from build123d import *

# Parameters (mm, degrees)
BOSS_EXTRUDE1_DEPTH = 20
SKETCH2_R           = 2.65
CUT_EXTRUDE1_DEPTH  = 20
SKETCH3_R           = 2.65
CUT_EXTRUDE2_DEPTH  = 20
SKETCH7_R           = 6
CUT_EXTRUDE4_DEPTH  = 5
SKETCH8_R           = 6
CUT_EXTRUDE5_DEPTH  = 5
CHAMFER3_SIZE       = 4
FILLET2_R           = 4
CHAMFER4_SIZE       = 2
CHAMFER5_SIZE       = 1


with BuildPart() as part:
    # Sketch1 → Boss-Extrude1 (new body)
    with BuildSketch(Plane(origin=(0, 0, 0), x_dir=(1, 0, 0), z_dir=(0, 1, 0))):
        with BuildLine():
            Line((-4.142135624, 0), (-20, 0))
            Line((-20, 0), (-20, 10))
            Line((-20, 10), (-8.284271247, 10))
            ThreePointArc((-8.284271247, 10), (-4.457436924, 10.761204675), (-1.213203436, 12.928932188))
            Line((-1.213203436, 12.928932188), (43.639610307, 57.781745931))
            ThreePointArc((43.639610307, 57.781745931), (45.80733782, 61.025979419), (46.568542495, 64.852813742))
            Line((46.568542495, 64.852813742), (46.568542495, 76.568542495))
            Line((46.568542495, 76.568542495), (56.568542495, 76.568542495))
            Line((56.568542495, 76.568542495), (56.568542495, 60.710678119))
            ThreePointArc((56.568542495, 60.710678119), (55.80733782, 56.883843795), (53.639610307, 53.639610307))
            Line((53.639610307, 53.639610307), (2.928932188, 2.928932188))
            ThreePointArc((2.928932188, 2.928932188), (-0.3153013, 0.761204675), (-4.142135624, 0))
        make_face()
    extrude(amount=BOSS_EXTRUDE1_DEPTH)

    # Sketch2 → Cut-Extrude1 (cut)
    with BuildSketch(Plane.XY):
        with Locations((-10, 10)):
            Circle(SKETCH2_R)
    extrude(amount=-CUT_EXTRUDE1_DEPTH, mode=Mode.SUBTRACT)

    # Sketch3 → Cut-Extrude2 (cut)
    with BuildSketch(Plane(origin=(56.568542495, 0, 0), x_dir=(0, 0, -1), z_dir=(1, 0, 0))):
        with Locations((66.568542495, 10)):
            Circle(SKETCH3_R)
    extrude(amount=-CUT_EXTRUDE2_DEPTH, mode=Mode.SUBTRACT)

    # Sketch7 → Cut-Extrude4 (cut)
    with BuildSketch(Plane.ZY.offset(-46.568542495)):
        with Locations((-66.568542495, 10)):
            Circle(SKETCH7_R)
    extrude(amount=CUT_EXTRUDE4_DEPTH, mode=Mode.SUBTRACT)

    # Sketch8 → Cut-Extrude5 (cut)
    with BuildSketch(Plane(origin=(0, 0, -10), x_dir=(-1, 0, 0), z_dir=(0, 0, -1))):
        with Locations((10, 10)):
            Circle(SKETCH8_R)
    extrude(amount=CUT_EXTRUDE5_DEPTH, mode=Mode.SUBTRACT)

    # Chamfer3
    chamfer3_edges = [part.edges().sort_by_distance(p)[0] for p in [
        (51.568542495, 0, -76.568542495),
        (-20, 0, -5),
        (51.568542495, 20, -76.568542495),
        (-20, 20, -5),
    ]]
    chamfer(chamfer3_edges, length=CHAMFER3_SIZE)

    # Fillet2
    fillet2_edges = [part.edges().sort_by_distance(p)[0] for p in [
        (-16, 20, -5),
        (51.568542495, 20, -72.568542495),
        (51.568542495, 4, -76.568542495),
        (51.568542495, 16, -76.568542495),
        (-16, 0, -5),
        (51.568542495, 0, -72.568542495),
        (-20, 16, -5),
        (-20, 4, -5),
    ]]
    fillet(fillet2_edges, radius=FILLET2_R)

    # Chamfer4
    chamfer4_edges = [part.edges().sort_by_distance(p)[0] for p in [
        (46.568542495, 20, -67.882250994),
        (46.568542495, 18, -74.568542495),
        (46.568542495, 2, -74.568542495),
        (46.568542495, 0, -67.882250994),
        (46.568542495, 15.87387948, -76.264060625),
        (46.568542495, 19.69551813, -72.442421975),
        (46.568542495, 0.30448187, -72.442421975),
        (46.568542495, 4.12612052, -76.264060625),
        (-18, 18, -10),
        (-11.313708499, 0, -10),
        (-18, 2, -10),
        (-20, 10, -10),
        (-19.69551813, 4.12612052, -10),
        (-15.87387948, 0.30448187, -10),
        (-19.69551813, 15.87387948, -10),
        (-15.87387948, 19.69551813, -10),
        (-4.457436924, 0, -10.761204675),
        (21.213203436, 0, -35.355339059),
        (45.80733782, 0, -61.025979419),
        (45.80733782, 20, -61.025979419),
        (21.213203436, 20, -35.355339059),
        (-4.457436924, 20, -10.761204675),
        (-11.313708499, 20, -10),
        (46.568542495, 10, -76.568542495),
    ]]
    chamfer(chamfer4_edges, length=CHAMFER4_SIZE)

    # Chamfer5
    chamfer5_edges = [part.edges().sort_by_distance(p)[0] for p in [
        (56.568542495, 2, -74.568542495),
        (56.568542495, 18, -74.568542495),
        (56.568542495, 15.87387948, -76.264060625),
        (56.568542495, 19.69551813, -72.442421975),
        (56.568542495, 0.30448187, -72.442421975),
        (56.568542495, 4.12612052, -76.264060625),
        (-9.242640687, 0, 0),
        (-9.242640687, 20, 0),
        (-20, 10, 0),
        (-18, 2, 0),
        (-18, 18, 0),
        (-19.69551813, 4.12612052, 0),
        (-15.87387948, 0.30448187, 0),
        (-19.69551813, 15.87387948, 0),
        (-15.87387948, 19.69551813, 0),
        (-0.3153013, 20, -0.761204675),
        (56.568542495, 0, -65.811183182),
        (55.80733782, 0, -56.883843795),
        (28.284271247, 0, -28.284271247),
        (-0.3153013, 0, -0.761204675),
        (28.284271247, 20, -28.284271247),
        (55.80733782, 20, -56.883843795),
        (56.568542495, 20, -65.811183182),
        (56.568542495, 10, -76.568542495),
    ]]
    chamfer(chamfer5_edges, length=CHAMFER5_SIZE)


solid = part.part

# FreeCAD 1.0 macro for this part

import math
import FreeCAD as App
import Part
import Sketcher

V = App.Vector
Q = App.Units.Quantity


def edges_at(feature, points):
    """Names of the edges that pass closest to the given points."""
    edges = feature.Shape.Edges
    near = lambda p: min(range(len(edges)), key=lambda i: edges[i].distToShape(Part.Vertex(*p))[0])
    return sorted({f"Edge{near(p) + 1}" for p in points})

doc = App.newDocument("Part")
body = doc.addObject("PartDesign::Body", "Body")

# Sketch on XZ plane
sketch1 = body.newObject("Sketcher::SketchObject", "Sketch")
sketch1.AttachmentSupport = (doc.getObject("XZ_Plane"), [""])
sketch1.MapMode = "FlatFace"
sketch1.addGeometry([
    Part.LineSegment(V(-20, 0, 0), V(-4.142136, 0, 0)),  # 0
    Part.ArcOfCircle(Part.Circle(V(-4.142136, -10, 0), V(0, 0, 1), 10), math.radians(45), math.radians(90)),  # 1
    Part.LineSegment(V(2.928932, -2.928932, 0), V(53.63961, -53.63961, 0)),  # 2
    Part.ArcOfCircle(Part.Circle(V(46.568542, -60.710678, 0), V(0, 0, 1), 10), math.radians(0), math.radians(45)),  # 3
    Part.LineSegment(V(56.568542, -60.710678, 0), V(56.568542, -76.568542, 0)),  # 4
    Part.LineSegment(V(56.568542, -76.568542, 0), V(46.568542, -76.568542, 0)),  # 5
    Part.LineSegment(V(46.568542, -76.568542, 0), V(46.568542, -64.852814, 0)),  # 6
    Part.ArcOfCircle(Part.Circle(V(36.568542, -64.852814, 0), V(0, 0, 1), 10), math.radians(0), math.radians(45)),  # 7
    Part.LineSegment(V(43.63961, -57.781746, 0), V(-1.213203, -12.928932, 0)),  # 8
    Part.ArcOfCircle(Part.Circle(V(-8.284271, -20, 0), V(0, 0, 1), 10), math.radians(45), math.radians(90)),  # 9
    Part.LineSegment(V(-8.284271, -10, 0), V(-20, -10, 0)),  # 10
    Part.LineSegment(V(-20, -10, 0), V(-20, 0, 0)),  # 11
], False)
sketch1.addConstraint([
    Sketcher.Constraint("Tangent", 0, 2, 1, 2),
    Sketcher.Constraint("Tangent", 1, 1, 2, 1),
    Sketcher.Constraint("Tangent", 2, 2, 3, 2),
    Sketcher.Constraint("Tangent", 3, 1, 4, 1),
    Sketcher.Constraint("Coincident", 4, 2, 5, 1),
    Sketcher.Constraint("Coincident", 5, 2, 6, 1),
    Sketcher.Constraint("Tangent", 6, 2, 7, 1),
    Sketcher.Constraint("Tangent", 7, 2, 8, 1),
    Sketcher.Constraint("Tangent", 8, 2, 9, 1),
    Sketcher.Constraint("Tangent", 9, 2, 10, 1),
    Sketcher.Constraint("Coincident", 10, 2, 11, 1),
    Sketcher.Constraint("Coincident", 11, 2, 0, 1),
    Sketcher.Constraint("Horizontal", 0),
    Sketcher.Constraint("Vertical", 4),
    Sketcher.Constraint("Horizontal", 5),
    Sketcher.Constraint("Vertical", 6),
    Sketcher.Constraint("Horizontal", 10),
    Sketcher.Constraint("Vertical", 11),
    Sketcher.Constraint("Equal", 1, 3),
    Sketcher.Constraint("Equal", 3, 7),
    Sketcher.Constraint("Equal", 7, 9),
    Sketcher.Constraint("PointOnObject", 0, 2, -1),
    Sketcher.Constraint("Parallel", 2, 8),
    Sketcher.Constraint("Horizontal", 1, 3, 9, 2),
    Sketcher.Constraint("Vertical", 3, 3, 5, 2),
    Sketcher.Constraint("Equal", 0, 4),
    Sketcher.Constraint("Equal", 10, 6),
    Sketcher.Constraint("Radius", 1, Q("10 mm")),
    Sketcher.Constraint("DistanceX", 10, 2, -1, 1, Q("20 mm")),
    Sketcher.Constraint("DistanceX", 10, 2, 10, 1, Q("11.715729 mm")),
    Sketcher.Constraint("Distance", 2, Q("71.715729 mm")),
    Sketcher.Constraint("DistanceX", 0, 1, 0, 2, Q("15.857864 mm")),
])
pad1 = body.newObject("PartDesign::Pad", "Pad")
pad1.Profile = sketch1
pad1.Length = 20
pad1.Reversed = True

# Sketch on XY plane
sketch2 = body.newObject("Sketcher::SketchObject", "Sketch001")
sketch2.AttachmentSupport = (doc.getObject("XY_Plane"), [""])
sketch2.MapMode = "FlatFace"
sketch2.addGeometry(Part.Circle(V(-10, 10, 0), V(0, 0, 1), 2.65), False)
sketch2.addConstraint([
    Sketcher.Constraint("Diameter", 0, Q("5.3 mm")),
    Sketcher.Constraint("DistanceX", 0, 3, -1, 1, Q("10 mm")),
    Sketcher.Constraint("DistanceY", -1, 1, 0, 3, Q("10 mm")),
])
pocket1 = body.newObject("PartDesign::Pocket", "Pocket")
pocket1.Profile = sketch2
pocket1.Length = 20

# Sketch on YZ plane
sketch3 = body.newObject("Sketcher::SketchObject", "Sketch002")
sketch3.AttachmentSupport = (doc.getObject("YZ_Plane"), [""])
sketch3.MapMode = "FlatFace"
sketch3.AttachmentOffset = App.Placement(V(0, 0, 56.568542), App.Rotation())
sketch3.addGeometry(Part.Circle(V(10, -66.568542, 0), V(0, 0, 1), 2.65), False)
sketch3.addConstraint([
    Sketcher.Constraint("Diameter", 0, Q("5.3 mm")),
    Sketcher.Constraint("DistanceX", -1, 1, 0, 3, Q("10 mm")),
    Sketcher.Constraint("DistanceY", 0, 3, -1, 1, Q("66.568542 mm")),
])
pocket2 = body.newObject("PartDesign::Pocket", "Pocket001")
pocket2.Profile = sketch3
pocket2.Length = 20

# Sketch on YZ plane
sketch4 = body.newObject("Sketcher::SketchObject", "Sketch003")
sketch4.AttachmentSupport = (doc.getObject("YZ_Plane"), [""])
sketch4.MapMode = "FlatFace"
sketch4.AttachmentOffset = App.Placement(V(0, 0, 46.568542), App.Rotation())
sketch4.addGeometry(Part.Circle(V(10, -66.568542, 0), V(0, 0, 1), 6), False)
sketch4.addConstraint([
    Sketcher.Constraint("Diameter", 0, Q("12 mm")),
    Sketcher.Constraint("DistanceX", -1, 1, 0, 3, Q("10 mm")),
    Sketcher.Constraint("DistanceY", 0, 3, -1, 1, Q("66.568542 mm")),
])
pocket3 = body.newObject("PartDesign::Pocket", "Pocket002")
pocket3.Profile = sketch4
pocket3.Length = 5

# Sketch on XY plane
sketch5 = body.newObject("Sketcher::SketchObject", "Sketch004")
sketch5.AttachmentSupport = (doc.getObject("XY_Plane"), [""])
sketch5.MapMode = "FlatFace"
sketch5.AttachmentOffset = App.Placement(V(0, 0, -10), App.Rotation())
sketch5.addGeometry(Part.Circle(V(-10, 10, 0), V(0, 0, 1), 6), False)
sketch5.addConstraint([
    Sketcher.Constraint("Diameter", 0, Q("12 mm")),
    Sketcher.Constraint("DistanceX", 0, 3, -1, 1, Q("10 mm")),
    Sketcher.Constraint("DistanceY", -1, 1, 0, 3, Q("10 mm")),
])
pocket4 = body.newObject("PartDesign::Pocket", "Pocket003")
pocket4.Profile = sketch5
pocket4.Length = 5
doc.recompute()

chamfer = body.newObject("PartDesign::Chamfer", "Chamfer")
chamfer.Base = (pocket4, edges_at(pocket4, [
    (51.569, 0, -76.569),
    (-20, 0, -5),
    (51.569, 20, -76.569),
    (-20, 20, -5),
]))
chamfer.Size = 4
doc.recompute()

fillet = body.newObject("PartDesign::Fillet", "Fillet")
fillet.Base = (chamfer, edges_at(chamfer, [
    (-16, 20, -5),
    (51.569, 20, -72.569),
    (51.569, 4, -76.569),
    (51.569, 16, -76.569),
    (-16, 0, -5),
    (51.569, 0, -72.569),
    (-20, 16, -5),
    (-20, 4, -5),
]))
fillet.Radius = 4
doc.recompute()

chamfer2 = body.newObject("PartDesign::Chamfer", "Chamfer001")
chamfer2.Base = (fillet, edges_at(fillet, [
    (46.569, 20, -67.882),
    (46.569, 18, -74.569),
    (46.569, 2, -74.569),
    (46.569, 0, -67.882),
    (46.569, 15.874, -76.264),
    (46.569, 19.696, -72.442),
    (46.569, 0.304, -72.442),
    (46.569, 4.126, -76.264),
    (-18, 18, -10),
    (-11.314, 0, -10),
    (-18, 2, -10),
    (-20, 10, -10),
    (-19.696, 4.126, -10),
    (-15.874, 0.304, -10),
    (-19.696, 15.874, -10),
    (-15.874, 19.696, -10),
    (-4.457, 0, -10.761),
    (21.213, 0, -35.355),
    (45.807, 0, -61.026),
    (45.807, 20, -61.026),
    (21.213, 20, -35.355),
    (-4.457, 20, -10.761),
    (-11.314, 20, -10),
    (46.569, 10, -76.569),
]))
chamfer2.Size = 2
doc.recompute()

chamfer3 = body.newObject("PartDesign::Chamfer", "Chamfer002")
chamfer3.Base = (chamfer2, edges_at(chamfer2, [
    (56.569, 2, -74.569),
    (56.569, 18, -74.569),
    (56.569, 15.874, -76.264),
    (56.569, 19.696, -72.442),
    (56.569, 0.304, -72.442),
    (56.569, 4.126, -76.264),
    (-9.243, 0, 0),
    (-9.243, 20, 0),
    (-20, 10, 0),
    (-18, 2, 0),
    (-18, 18, 0),
    (-19.696, 4.126, 0),
    (-15.874, 0.304, 0),
    (-19.696, 15.874, 0),
    (-15.874, 19.696, 0),
    (-0.315, 20, -0.761),
    (56.569, 0, -65.811),
    (55.807, 0, -56.884),
    (28.284, 0, -28.284),
    (-0.315, 0, -0.761),
    (28.284, 20, -28.284),
    (55.807, 20, -56.884),
    (56.569, 20, -65.811),
    (56.569, 10, -76.569),
]))
chamfer3.Size = 1

doc.recompute()
